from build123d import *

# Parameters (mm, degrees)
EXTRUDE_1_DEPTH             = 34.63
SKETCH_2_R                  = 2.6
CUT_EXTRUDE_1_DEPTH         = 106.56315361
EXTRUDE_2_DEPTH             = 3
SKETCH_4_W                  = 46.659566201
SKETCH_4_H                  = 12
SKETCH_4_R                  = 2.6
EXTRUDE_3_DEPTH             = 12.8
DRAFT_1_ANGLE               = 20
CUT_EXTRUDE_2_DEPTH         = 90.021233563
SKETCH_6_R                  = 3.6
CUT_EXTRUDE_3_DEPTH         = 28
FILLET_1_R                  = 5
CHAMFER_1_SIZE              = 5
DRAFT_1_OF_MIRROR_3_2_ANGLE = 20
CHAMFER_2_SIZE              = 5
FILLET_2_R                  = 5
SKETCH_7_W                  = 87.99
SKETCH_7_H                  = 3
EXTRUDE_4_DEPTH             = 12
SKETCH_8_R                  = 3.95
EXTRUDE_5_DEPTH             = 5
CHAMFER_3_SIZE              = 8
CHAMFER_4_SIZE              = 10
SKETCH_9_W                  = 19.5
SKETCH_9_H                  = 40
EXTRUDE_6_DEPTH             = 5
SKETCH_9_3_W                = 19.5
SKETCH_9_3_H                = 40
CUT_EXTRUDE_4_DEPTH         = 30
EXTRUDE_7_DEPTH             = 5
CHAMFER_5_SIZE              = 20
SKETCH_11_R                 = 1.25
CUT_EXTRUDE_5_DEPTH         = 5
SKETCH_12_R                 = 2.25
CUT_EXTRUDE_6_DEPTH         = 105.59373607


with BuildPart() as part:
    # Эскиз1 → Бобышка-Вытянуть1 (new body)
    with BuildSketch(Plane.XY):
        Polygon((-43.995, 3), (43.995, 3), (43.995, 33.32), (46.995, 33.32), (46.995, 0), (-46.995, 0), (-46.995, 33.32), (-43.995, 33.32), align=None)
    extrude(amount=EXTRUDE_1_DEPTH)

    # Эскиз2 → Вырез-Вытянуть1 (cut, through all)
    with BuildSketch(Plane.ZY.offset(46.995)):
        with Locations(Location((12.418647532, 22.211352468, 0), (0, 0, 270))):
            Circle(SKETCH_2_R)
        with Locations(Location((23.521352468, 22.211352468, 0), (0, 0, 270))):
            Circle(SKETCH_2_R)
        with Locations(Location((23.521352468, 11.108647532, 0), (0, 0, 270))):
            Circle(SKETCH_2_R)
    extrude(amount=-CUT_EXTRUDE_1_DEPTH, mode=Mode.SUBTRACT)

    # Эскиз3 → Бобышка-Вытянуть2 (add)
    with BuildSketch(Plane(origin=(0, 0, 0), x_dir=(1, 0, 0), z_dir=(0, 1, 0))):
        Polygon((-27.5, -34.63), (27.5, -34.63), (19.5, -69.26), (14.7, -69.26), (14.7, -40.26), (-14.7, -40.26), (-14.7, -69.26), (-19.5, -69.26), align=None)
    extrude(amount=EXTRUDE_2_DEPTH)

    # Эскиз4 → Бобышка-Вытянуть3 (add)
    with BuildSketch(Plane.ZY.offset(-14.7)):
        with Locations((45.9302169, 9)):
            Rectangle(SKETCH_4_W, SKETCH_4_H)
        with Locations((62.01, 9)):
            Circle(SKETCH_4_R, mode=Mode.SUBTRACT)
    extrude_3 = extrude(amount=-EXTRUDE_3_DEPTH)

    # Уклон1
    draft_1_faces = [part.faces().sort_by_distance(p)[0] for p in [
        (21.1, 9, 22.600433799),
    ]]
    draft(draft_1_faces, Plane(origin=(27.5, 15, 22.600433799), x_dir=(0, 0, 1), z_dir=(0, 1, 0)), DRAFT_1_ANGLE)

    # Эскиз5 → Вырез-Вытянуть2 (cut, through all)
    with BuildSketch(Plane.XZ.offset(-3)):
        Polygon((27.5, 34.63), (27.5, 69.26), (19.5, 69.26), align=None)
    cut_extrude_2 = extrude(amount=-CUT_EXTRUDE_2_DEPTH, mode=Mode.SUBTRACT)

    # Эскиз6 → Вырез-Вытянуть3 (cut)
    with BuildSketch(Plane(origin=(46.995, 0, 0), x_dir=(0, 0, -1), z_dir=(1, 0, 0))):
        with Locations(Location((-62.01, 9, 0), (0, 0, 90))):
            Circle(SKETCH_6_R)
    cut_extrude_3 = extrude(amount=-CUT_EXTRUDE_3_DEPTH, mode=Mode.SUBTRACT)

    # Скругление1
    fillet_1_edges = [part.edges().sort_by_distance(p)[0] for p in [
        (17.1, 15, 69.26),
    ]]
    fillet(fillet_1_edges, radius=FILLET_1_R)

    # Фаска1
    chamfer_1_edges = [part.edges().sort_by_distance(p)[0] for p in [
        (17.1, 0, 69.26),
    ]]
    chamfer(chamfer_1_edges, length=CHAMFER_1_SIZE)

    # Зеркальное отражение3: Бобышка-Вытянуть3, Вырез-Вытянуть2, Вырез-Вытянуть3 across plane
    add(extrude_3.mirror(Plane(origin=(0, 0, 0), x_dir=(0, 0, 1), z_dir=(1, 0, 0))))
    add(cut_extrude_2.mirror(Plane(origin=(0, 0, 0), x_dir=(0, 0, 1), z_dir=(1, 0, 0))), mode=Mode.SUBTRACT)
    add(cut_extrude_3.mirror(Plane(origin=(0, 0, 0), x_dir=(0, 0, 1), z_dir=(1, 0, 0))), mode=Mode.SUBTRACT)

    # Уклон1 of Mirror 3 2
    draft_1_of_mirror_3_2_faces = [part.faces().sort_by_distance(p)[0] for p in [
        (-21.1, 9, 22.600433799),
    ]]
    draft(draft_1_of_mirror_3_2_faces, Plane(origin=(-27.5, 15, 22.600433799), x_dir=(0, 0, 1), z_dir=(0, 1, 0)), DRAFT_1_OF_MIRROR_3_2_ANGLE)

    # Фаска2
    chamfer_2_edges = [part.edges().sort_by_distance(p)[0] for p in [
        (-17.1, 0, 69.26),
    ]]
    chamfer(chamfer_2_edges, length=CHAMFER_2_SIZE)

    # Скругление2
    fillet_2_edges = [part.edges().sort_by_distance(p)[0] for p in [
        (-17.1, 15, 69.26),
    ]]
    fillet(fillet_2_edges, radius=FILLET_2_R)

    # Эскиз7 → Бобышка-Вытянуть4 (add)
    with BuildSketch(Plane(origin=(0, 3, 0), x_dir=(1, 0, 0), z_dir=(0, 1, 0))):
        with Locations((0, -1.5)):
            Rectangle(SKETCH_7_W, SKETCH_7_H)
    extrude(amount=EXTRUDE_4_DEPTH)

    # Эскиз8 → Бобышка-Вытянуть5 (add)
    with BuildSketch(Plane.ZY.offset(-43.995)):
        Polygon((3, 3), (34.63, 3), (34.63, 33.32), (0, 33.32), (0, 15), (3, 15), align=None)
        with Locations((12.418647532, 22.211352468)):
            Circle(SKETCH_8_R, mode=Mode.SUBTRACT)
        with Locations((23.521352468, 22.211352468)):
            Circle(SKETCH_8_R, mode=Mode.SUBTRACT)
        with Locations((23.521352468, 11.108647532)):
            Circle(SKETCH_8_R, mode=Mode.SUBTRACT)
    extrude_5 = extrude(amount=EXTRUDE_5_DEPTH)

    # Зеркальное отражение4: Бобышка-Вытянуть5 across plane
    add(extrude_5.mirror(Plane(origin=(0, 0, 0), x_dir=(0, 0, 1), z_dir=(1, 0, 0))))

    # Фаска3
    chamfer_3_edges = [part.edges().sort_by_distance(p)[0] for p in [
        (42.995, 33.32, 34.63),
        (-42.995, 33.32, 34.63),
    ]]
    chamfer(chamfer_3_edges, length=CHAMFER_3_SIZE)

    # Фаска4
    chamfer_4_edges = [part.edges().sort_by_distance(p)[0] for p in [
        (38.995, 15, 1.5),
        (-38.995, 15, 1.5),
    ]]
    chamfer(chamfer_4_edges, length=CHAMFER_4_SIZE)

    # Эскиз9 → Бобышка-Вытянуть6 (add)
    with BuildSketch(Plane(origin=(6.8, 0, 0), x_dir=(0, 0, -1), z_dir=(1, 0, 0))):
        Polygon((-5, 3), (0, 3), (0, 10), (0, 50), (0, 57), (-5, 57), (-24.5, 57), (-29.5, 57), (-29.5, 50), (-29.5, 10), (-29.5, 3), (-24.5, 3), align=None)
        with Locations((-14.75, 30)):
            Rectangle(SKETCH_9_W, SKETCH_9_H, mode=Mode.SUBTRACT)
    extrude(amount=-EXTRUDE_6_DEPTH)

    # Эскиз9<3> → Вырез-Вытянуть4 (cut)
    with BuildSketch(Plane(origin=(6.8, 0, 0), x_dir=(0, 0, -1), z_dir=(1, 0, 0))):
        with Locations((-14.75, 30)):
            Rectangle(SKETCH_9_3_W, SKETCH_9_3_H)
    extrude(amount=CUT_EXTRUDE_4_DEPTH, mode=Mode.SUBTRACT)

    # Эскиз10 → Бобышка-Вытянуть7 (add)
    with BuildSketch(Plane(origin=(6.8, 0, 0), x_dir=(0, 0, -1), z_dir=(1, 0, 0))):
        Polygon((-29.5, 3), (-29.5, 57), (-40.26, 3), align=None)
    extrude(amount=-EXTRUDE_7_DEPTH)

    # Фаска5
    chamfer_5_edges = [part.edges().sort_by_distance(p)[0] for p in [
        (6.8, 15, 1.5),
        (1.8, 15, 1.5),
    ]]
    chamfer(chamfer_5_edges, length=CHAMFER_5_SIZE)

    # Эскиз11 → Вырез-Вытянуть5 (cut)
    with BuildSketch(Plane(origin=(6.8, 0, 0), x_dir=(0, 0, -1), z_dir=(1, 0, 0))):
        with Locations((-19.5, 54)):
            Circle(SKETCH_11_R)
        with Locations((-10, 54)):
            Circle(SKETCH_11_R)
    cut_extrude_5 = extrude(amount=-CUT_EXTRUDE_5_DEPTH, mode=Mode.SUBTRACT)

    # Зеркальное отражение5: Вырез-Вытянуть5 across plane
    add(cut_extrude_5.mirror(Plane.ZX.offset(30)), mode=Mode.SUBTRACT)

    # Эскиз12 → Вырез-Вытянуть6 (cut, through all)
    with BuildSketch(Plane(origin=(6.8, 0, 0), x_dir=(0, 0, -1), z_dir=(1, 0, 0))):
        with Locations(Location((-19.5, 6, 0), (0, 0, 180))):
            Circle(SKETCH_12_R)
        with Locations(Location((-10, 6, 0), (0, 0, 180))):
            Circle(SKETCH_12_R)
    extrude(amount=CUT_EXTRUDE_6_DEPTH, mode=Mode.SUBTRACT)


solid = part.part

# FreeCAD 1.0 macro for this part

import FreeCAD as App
import Part
import Sketcher
Q = App.Units.Quantity


def edges_at(feature, points):
    """Names of the edges that pass closest to the given points."""
    edges = feature.Shape.Edges
    near = lambda p: min(range(len(edges)), key=lambda i: edges[i].distToShape(Part.Vertex(*p))[0])
    return sorted({f"Edge{near(p) + 1}" for p in points})


def faces_at(feature, points):
    """Names of the faces that lie closest to the given points."""
    faces = feature.Shape.Faces
    near = lambda p: min(range(len(faces)), key=lambda i: faces[i].distToShape(Part.Vertex(*p))[0])
    return sorted({f"Face{near(p) + 1}" for p in points})

doc = App.newDocument("Part")
body = doc.addObject("PartDesign::Body", "Body")

sketch1 = body.newObject("Sketcher::SketchObject", "Sketch")
sketch1.AttachmentSupport = (doc.getObject("XY_Plane"), [""])
sketch1.MapMode = "FlatFace"
sketch1.addGeometry(Part.LineSegment(App.Vector(44, 3, 0), App.Vector(-44, 3, 0)), False)
sketch1.addGeometry(Part.LineSegment(App.Vector(-44, 3, 0), App.Vector(-44, 33.3, 0)), False)
sketch1.addGeometry(Part.LineSegment(App.Vector(-44, 33.3, 0), App.Vector(-47, 33.3, 0)), False)
sketch1.addGeometry(Part.LineSegment(App.Vector(-47, 33.3, 0), App.Vector(-47, 0, 0)), False)
sketch1.addGeometry(Part.LineSegment(App.Vector(-47, 0, 0), App.Vector(47, 0, 0)), False)
sketch1.addGeometry(Part.LineSegment(App.Vector(47, 0, 0), App.Vector(47, 33.3, 0)), False)
sketch1.addGeometry(Part.LineSegment(App.Vector(47, 33.3, 0), App.Vector(44, 33.3, 0)), False)
sketch1.addGeometry(Part.LineSegment(App.Vector(44, 33.3, 0), App.Vector(44, 3, 0)), False)
sketch1.addConstraint(Sketcher.Constraint("Coincident", 0, 2, 1, 1))
sketch1.addConstraint(Sketcher.Constraint("Coincident", 1, 2, 2, 1))
sketch1.addConstraint(Sketcher.Constraint("Coincident", 2, 2, 3, 1))
sketch1.addConstraint(Sketcher.Constraint("Coincident", 3, 2, 4, 1))
sketch1.addConstraint(Sketcher.Constraint("Coincident", 4, 2, 5, 1))
sketch1.addConstraint(Sketcher.Constraint("Coincident", 5, 2, 6, 1))
sketch1.addConstraint(Sketcher.Constraint("Coincident", 6, 2, 7, 1))
sketch1.addConstraint(Sketcher.Constraint("Coincident", 7, 2, 0, 1))
sketch1.addConstraint(Sketcher.Constraint("Horizontal", 0))
sketch1.addConstraint(Sketcher.Constraint("Vertical", 1))
sketch1.addConstraint(Sketcher.Constraint("Horizontal", 2))
sketch1.addConstraint(Sketcher.Constraint("Vertical", 3))
sketch1.addConstraint(Sketcher.Constraint("Horizontal", 4))
sketch1.addConstraint(Sketcher.Constraint("Vertical", 5))
sketch1.addConstraint(Sketcher.Constraint("Horizontal", 6))
sketch1.addConstraint(Sketcher.Constraint("Vertical", 7))
sketch1.addConstraint(Sketcher.Constraint("Symmetric", 3, 2, 4, 2, -1, 1))
sketch1.addConstraint(Sketcher.Constraint("Symmetric", 1, 2, 6, 2, -2))
sketch1.addConstraint(Sketcher.Constraint("DistanceX", 2, 2, 2, 1, Q("3 mm")))
sketch1.addConstraint(Sketcher.Constraint("DistanceY", -1, 1, 0, 2, Q("3 mm")))
sketch1.addConstraint(Sketcher.Constraint("DistanceX", 0, 2, 0, 1, Q("87.99 mm")))
sketch1.addConstraint(Sketcher.Constraint("DistanceY", 1, 1, 1, 2, Q("30.32 mm")))
pad1 = body.newObject("PartDesign::Pad", "Pad")
pad1.Profile = sketch1
pad1.Length = 34.63

sketch2 = body.newObject("Sketcher::SketchObject", "Sketch001")
sketch2.AttachmentSupport = (doc.getObject("YZ_Plane"), [""])
sketch2.MapMode = "FlatFace"
sketch2.AttachmentOffset = App.Placement(App.Vector(0, 0, -46.995), App.Rotation())
sketch2.addGeometry(Part.Circle(App.Vector(22.2, 12.4, 0), App.Vector(0, 0, 1), 2.6), False)
sketch2.addGeometry(Part.Circle(App.Vector(22.2, 23.5, 0), App.Vector(0, 0, 1), 2.6), False)
sketch2.addGeometry(Part.Circle(App.Vector(11.1, 23.5, 0), App.Vector(0, 0, 1), 2.6), False)
sketch2.addConstraint(Sketcher.Constraint("Equal", 0, 1))
sketch2.addConstraint(Sketcher.Constraint("Equal", 1, 2))
sketch2.addConstraint(Sketcher.Constraint("Horizontal", 1, 3, 2, 3))
sketch2.addConstraint(Sketcher.Constraint("Vertical", 0, 3, 1, 3))
sketch2.addConstraint(Sketcher.Constraint("Diameter", 0, Q("5.2 mm")))
sketch2.addConstraint(Sketcher.Constraint("DistanceX", -1, 1, 0, 3, Q("22.211352 mm")))
sketch2.addConstraint(Sketcher.Constraint("DistanceY", -1, 1, 0, 3, Q("12.418648 mm")))
sketch2.addConstraint(Sketcher.Constraint("DistanceY", -1, 1, 1, 3, Q("23.521352 mm")))
sketch2.addConstraint(Sketcher.Constraint("DistanceX", -1, 1, 2, 3, Q("11.108648 mm")))
pocket1 = body.newObject("PartDesign::Pocket", "Pocket")
pocket1.Profile = sketch2
pocket1.Type = "ThroughAll"
pocket1.Reversed = True

sketch3 = body.newObject("Sketcher::SketchObject", "Sketch002")
sketch3.AttachmentSupport = (doc.getObject("XZ_Plane"), [""])
sketch3.MapMode = "FlatFace"
sketch3.addGeometry(Part.LineSegment(App.Vector(27.5, 34.6, 0), App.Vector(-27.5, 34.6, 0)), False)
sketch3.addGeometry(Part.LineSegment(App.Vector(-27.5, 34.6, 0), App.Vector(-19.5, 69.3, 0)), False)
sketch3.addGeometry(Part.LineSegment(App.Vector(-19.5, 69.3, 0), App.Vector(-14.7, 69.3, 0)), False)
sketch3.addGeometry(Part.LineSegment(App.Vector(-14.7, 69.3, 0), App.Vector(-14.7, 40.3, 0)), False)
sketch3.addGeometry(Part.LineSegment(App.Vector(-14.7, 40.3, 0), App.Vector(14.7, 40.3, 0)), False)
sketch3.addGeometry(Part.LineSegment(App.Vector(14.7, 40.3, 0), App.Vector(14.7, 69.3, 0)), False)
sketch3.addGeometry(Part.LineSegment(App.Vector(14.7, 69.3, 0), App.Vector(19.5, 69.3, 0)), False)
sketch3.addGeometry(Part.LineSegment(App.Vector(19.5, 69.3, 0), App.Vector(27.5, 34.6, 0)), False)
sketch3.addConstraint(Sketcher.Constraint("Coincident", 0, 2, 1, 1))
sketch3.addConstraint(Sketcher.Constraint("Coincident", 1, 2, 2, 1))
sketch3.addConstraint(Sketcher.Constraint("Coincident", 2, 2, 3, 1))
sketch3.addConstraint(Sketcher.Constraint("Coincident", 3, 2, 4, 1))
sketch3.addConstraint(Sketcher.Constraint("Coincident", 4, 2, 5, 1))
sketch3.addConstraint(Sketcher.Constraint("Coincident", 5, 2, 6, 1))
sketch3.addConstraint(Sketcher.Constraint("Coincident", 6, 2, 7, 1))
sketch3.addConstraint(Sketcher.Constraint("Coincident", 7, 2, 0, 1))
sketch3.addConstraint(Sketcher.Constraint("Horizontal", 0))
sketch3.addConstraint(Sketcher.Constraint("Horizontal", 2))
sketch3.addConstraint(Sketcher.Constraint("Vertical", 3))
sketch3.addConstraint(Sketcher.Constraint("Horizontal", 4))
sketch3.addConstraint(Sketcher.Constraint("Vertical", 5))
sketch3.addConstraint(Sketcher.Constraint("Horizontal", 6))
sketch3.addConstraint(Sketcher.Constraint("Symmetric", 2, 2, 5, 2, -2))
sketch3.addConstraint(Sketcher.Constraint("Equal", 2, 6))
sketch3.addConstraint(Sketcher.Constraint("Equal", 1, 7))
sketch3.addConstraint(Sketcher.Constraint("DistanceX", 0, 2, 0, 1, Q("55 mm")))
sketch3.addConstraint(Sketcher.Constraint("DistanceY", 3, 2, 3, 1, Q("29 mm")))
sketch3.addConstraint(Sketcher.Constraint("DistanceX", 2, 1, 2, 2, Q("4.8 mm")))
sketch3.addConstraint(Sketcher.Constraint("DistanceX", 4, 1, 4, 2, Q("29.4 mm")))
sketch3.addConstraint(Sketcher.Constraint("DistanceY", -1, 1, 0, 2, Q("34.63 mm")))
sketch3.addConstraint(Sketcher.Constraint("DistanceY", -1, 1, 1, 2, Q("69.26 mm")))
pad2 = body.newObject("PartDesign::Pad", "Pad001")
pad2.Profile = sketch3
pad2.Length = 3
pad2.Reversed = True

sketch4 = body.newObject("Sketcher::SketchObject", "Sketch003")
sketch4.AttachmentSupport = (doc.getObject("YZ_Plane"), [""])
sketch4.MapMode = "FlatFace"
sketch4.AttachmentOffset = App.Placement(App.Vector(0, 0, 14.7), App.Rotation())
sketch4.addGeometry(Part.LineSegment(App.Vector(15, 22.6, 0), App.Vector(3, 22.6, 0)), False)
sketch4.addGeometry(Part.LineSegment(App.Vector(3, 22.6, 0), App.Vector(3, 69.3, 0)), False)
sketch4.addGeometry(Part.LineSegment(App.Vector(3, 69.3, 0), App.Vector(15, 69.3, 0)), False)
sketch4.addGeometry(Part.LineSegment(App.Vector(15, 69.3, 0), App.Vector(15, 22.6, 0)), False)
sketch4.addGeometry(Part.Circle(App.Vector(9, 62, 0), App.Vector(0, 0, 1), 2.6), False)
sketch4.addConstraint(Sketcher.Constraint("Coincident", 0, 2, 1, 1))
sketch4.addConstraint(Sketcher.Constraint("Coincident", 1, 2, 2, 1))
sketch4.addConstraint(Sketcher.Constraint("Coincident", 2, 2, 3, 1))
sketch4.addConstraint(Sketcher.Constraint("Coincident", 3, 2, 0, 1))
sketch4.addConstraint(Sketcher.Constraint("Horizontal", 0))
sketch4.addConstraint(Sketcher.Constraint("Vertical", 1))
sketch4.addConstraint(Sketcher.Constraint("Horizontal", 2))
sketch4.addConstraint(Sketcher.Constraint("Vertical", 3))
sketch4.addConstraint(Sketcher.Constraint("Diameter", 4, Q("5.2 mm")))
sketch4.addConstraint(Sketcher.Constraint("DistanceX", 0, 2, 0, 1, Q("12 mm")))
sketch4.addConstraint(Sketcher.Constraint("DistanceX", -1, 1, 4, 3, Q("9 mm")))
sketch4.addConstraint(Sketcher.Constraint("DistanceX", -1, 1, 0, 2, Q("3 mm")))
sketch4.addConstraint(Sketcher.Constraint("DistanceY", -1, 1, 4, 3, Q("62.01 mm")))
sketch4.addConstraint(Sketcher.Constraint("DistanceY", -1, 1, 1, 2, Q("69.26 mm")))
sketch4.addConstraint(Sketcher.Constraint("DistanceY", 1, 1, 1, 2, Q("46.659566 mm")))
pad3 = body.newObject("PartDesign::Pad", "Pad002")
pad3.Profile = sketch4
pad3.Length = 12.8
doc.recompute()

datumplane = body.newObject("PartDesign::Plane", "DatumPlane")
datumplane.AttachmentSupport = (doc.getObject("XZ_Plane"), [""])
datumplane.MapMode = "FlatFace"
datumplane.AttachmentOffset = App.Placement(App.Vector(0, 0, -15), App.Rotation())
draft = body.newObject("PartDesign::Draft", "Draft")
draft.Base = (pad3, faces_at(pad3, [(21.1, 9, 22.6)]))
draft.NeutralPlane = (datumplane, [""])
draft.Angle = 20
draft.Reversed = True

sketch5 = body.newObject("Sketcher::SketchObject", "Sketch004")
sketch5.AttachmentSupport = (doc.getObject("XZ_Plane"), [""])
sketch5.MapMode = "FlatFace"
sketch5.AttachmentOffset = App.Placement(App.Vector(0, 0, -3), App.Rotation())
sketch5.addGeometry(Part.LineSegment(App.Vector(28, 35, 0), App.Vector(28, 69, 0)), False)
sketch5.addGeometry(Part.LineSegment(App.Vector(28, 69, 0), App.Vector(20, 69, 0)), False)
sketch5.addGeometry(Part.LineSegment(App.Vector(20, 69, 0), App.Vector(28, 35, 0)), False)
sketch5.addConstraint(Sketcher.Constraint("Coincident", 0, 2, 1, 1))
sketch5.addConstraint(Sketcher.Constraint("Coincident", 1, 2, 2, 1))
sketch5.addConstraint(Sketcher.Constraint("Coincident", 2, 2, 0, 1))
sketch5.addConstraint(Sketcher.Constraint("Vertical", 0))
sketch5.addConstraint(Sketcher.Constraint("Horizontal", 1))
sketch5.addConstraint(Sketcher.Constraint("DistanceX", 1, 2, 1, 1, Q("8 mm")))
sketch5.addConstraint(Sketcher.Constraint("DistanceY", 0, 1, 0, 2, Q("34.63 mm")))
sketch5.addConstraint(Sketcher.Constraint("DistanceX", -1, 1, 0, 2, Q("27.5 mm")))
sketch5.addConstraint(Sketcher.Constraint("DistanceY", -1, 1, 0, 2, Q("69.26 mm")))
pocket2 = body.newObject("PartDesign::Pocket", "Pocket001")
pocket2.Profile = sketch5
pocket2.Type = "ThroughAll"

sketch6 = body.newObject("Sketcher::SketchObject", "Sketch005")
sketch6.AttachmentSupport = (doc.getObject("YZ_Plane"), [""])
sketch6.MapMode = "FlatFace"
sketch6.AttachmentOffset = App.Placement(App.Vector(0, 0, 46.995), App.Rotation())
sketch6.addGeometry(Part.Circle(App.Vector(9, 62, 0), App.Vector(0, 0, 1), 3.6), False)
sketch6.addConstraint(Sketcher.Constraint("Diameter", 0, Q("7.2 mm")))
sketch6.addConstraint(Sketcher.Constraint("DistanceX", -1, 1, 0, 3, Q("9 mm")))
sketch6.addConstraint(Sketcher.Constraint("DistanceY", -1, 1, 0, 3, Q("62.01 mm")))
pocket3 = body.newObject("PartDesign::Pocket", "Pocket002")
pocket3.Profile = sketch6
pocket3.Length = 28
doc.recompute()

fillet = body.newObject("PartDesign::Fillet", "Fillet")
fillet.Base = (pocket3, edges_at(pocket3, [(17.1, 15, 69.26)]))
fillet.Radius = 5
doc.recompute()

chamfer = body.newObject("PartDesign::Chamfer", "Chamfer")
chamfer.Base = (fillet, edges_at(fillet, [(17.1, 0, 69.26)]))
chamfer.Size = 5
doc.recompute()

mirrored = body.newObject("PartDesign::Mirrored", "Mirrored")
mirrored.Originals = [pad3, pocket2, pocket3]
mirrored.MirrorPlane = (doc.getObject("YZ_Plane"), [""])
body.Tip = mirrored
doc.recompute()

datumplane2 = body.newObject("PartDesign::Plane", "DatumPlane001")
datumplane2.AttachmentSupport = (doc.getObject("XZ_Plane"), [""])
datumplane2.MapMode = "FlatFace"
datumplane2.AttachmentOffset = App.Placement(App.Vector(0, 0, -15), App.Rotation())
draft2 = body.newObject("PartDesign::Draft", "Draft001")
draft2.Base = (mirrored, faces_at(mirrored, [(-21.1, 9, 22.6)]))
draft2.NeutralPlane = (datumplane2, [""])
draft2.Angle = 20
draft2.Reversed = True
doc.recompute()

chamfer2 = body.newObject("PartDesign::Chamfer", "Chamfer001")
chamfer2.Base = (draft2, edges_at(draft2, [(-17.1, 0, 69.26)]))
chamfer2.Size = 5
doc.recompute()

fillet2 = body.newObject("PartDesign::Fillet", "Fillet001")
fillet2.Base = (chamfer2, edges_at(chamfer2, [(-17.1, 15, 69.26)]))
fillet2.Radius = 5

sketch7 = body.newObject("Sketcher::SketchObject", "Sketch006")
sketch7.AttachmentSupport = (doc.getObject("XZ_Plane"), [""])
sketch7.MapMode = "FlatFace"
sketch7.AttachmentOffset = App.Placement(App.Vector(0, 0, -3), App.Rotation())
sketch7.addGeometry(Part.LineSegment(App.Vector(-44, 0, 0), App.Vector(-44, 3, 0)), False)
sketch7.addGeometry(Part.LineSegment(App.Vector(-44, 3, 0), App.Vector(44, 3, 0)), False)
sketch7.addGeometry(Part.LineSegment(App.Vector(44, 3, 0), App.Vector(44, 0, 0)), False)
sketch7.addGeometry(Part.LineSegment(App.Vector(44, 0, 0), App.Vector(-44, 0, 0)), False)
sketch7.addConstraint(Sketcher.Constraint("Coincident", 0, 2, 1, 1))
sketch7.addConstraint(Sketcher.Constraint("Coincident", 1, 2, 2, 1))
sketch7.addConstraint(Sketcher.Constraint("Coincident", 2, 2, 3, 1))
sketch7.addConstraint(Sketcher.Constraint("Coincident", 3, 2, 0, 1))
sketch7.addConstraint(Sketcher.Constraint("Vertical", 0))
sketch7.addConstraint(Sketcher.Constraint("Horizontal", 1))
sketch7.addConstraint(Sketcher.Constraint("Vertical", 2))
sketch7.addConstraint(Sketcher.Constraint("Horizontal", 3))
sketch7.addConstraint(Sketcher.Constraint("Symmetric", 2, 2, 3, 2, -1, 1))
sketch7.addConstraint(Sketcher.Constraint("DistanceY", 0, 1, 0, 2, Q("3 mm")))
sketch7.addConstraint(Sketcher.Constraint("DistanceX", 1, 1, 1, 2, Q("87.99 mm")))
pad4 = body.newObject("PartDesign::Pad", "Pad003")
pad4.Profile = sketch7
pad4.Length = 12
pad4.Reversed = True

sketch8 = body.newObject("Sketcher::SketchObject", "Sketch007")
sketch8.AttachmentSupport = (doc.getObject("YZ_Plane"), [""])
sketch8.MapMode = "FlatFace"
sketch8.AttachmentOffset = App.Placement(App.Vector(0, 0, 43.995), App.Rotation())
sketch8.addGeometry(Part.LineSegment(App.Vector(3, 3, 0), App.Vector(3, 34.6, 0)), False)
sketch8.addGeometry(Part.LineSegment(App.Vector(3, 34.6, 0), App.Vector(33.3, 34.6, 0)), False)
sketch8.addGeometry(Part.LineSegment(App.Vector(33.3, 34.6, 0), App.Vector(33.3, 0, 0)), False)
sketch8.addGeometry(Part.LineSegment(App.Vector(33.3, 0, 0), App.Vector(15, 0, 0)), False)
sketch8.addGeometry(Part.LineSegment(App.Vector(15, 0, 0), App.Vector(15, 3, 0)), False)
sketch8.addGeometry(Part.LineSegment(App.Vector(15, 3, 0), App.Vector(3, 3, 0)), False)
sketch8.addGeometry(Part.Circle(App.Vector(11.1, 23.5, 0), App.Vector(0, 0, 1), 4), False)
sketch8.addGeometry(Part.Circle(App.Vector(22.2, 12.4, 0), App.Vector(0, 0, 1), 4), False)
sketch8.addGeometry(Part.Circle(App.Vector(22.2, 23.5, 0), App.Vector(0, 0, 1), 4), False)
sketch8.addConstraint(Sketcher.Constraint("Coincident", 0, 2, 1, 1))
sketch8.addConstraint(Sketcher.Constraint("Coincident", 1, 2, 2, 1))
sketch8.addConstraint(Sketcher.Constraint("Coincident", 2, 2, 3, 1))
sketch8.addConstraint(Sketcher.Constraint("Coincident", 3, 2, 4, 1))
sketch8.addConstraint(Sketcher.Constraint("Coincident", 4, 2, 5, 1))
sketch8.addConstraint(Sketcher.Constraint("Coincident", 5, 2, 0, 1))
sketch8.addConstraint(Sketcher.Constraint("Vertical", 0))
sketch8.addConstraint(Sketcher.Constraint("Horizontal", 1))
sketch8.addConstraint(Sketcher.Constraint("Vertical", 2))
sketch8.addConstraint(Sketcher.Constraint("Horizontal", 3))
sketch8.addConstraint(Sketcher.Constraint("Vertical", 4))
sketch8.addConstraint(Sketcher.Constraint("Horizontal", 5))
sketch8.addConstraint(Sketcher.Constraint("Equal", 6, 7))
sketch8.addConstraint(Sketcher.Constraint("Equal", 7, 8))
sketch8.addConstraint(Sketcher.Constraint("PointOnObject", 2, 2, -1))
sketch8.addConstraint(Sketcher.Constraint("Horizontal", 6, 3, 8, 3))
sketch8.addConstraint(Sketcher.Constraint("Vertical", 7, 3, 8, 3))
sketch8.addConstraint(Sketcher.Constraint("Diameter", 6, Q("7.9 mm")))
sketch8.addConstraint(Sketcher.Constraint("DistanceX", 5, 2, 5, 1, Q("12 mm")))
sketch8.addConstraint(Sketcher.Constraint("DistanceY", 4, 1, 4, 2, Q("3 mm")))
sketch8.addConstraint(Sketcher.Constraint("DistanceX", -1, 1, 0, 2, Q("3 mm")))
sketch8.addConstraint(Sketcher.Constraint("DistanceX", 1, 1, 1, 2, Q("30.32 mm")))
sketch8.addConstraint(Sketcher.Constraint("DistanceY", 0, 1, 0, 2, Q("31.63 mm")))
sketch8.addConstraint(Sketcher.Constraint("DistanceX", -1, 1, 6, 3, Q("11.108648 mm")))
sketch8.addConstraint(Sketcher.Constraint("DistanceY", -1, 1, 6, 3, Q("23.521352 mm")))
sketch8.addConstraint(Sketcher.Constraint("DistanceX", -1, 1, 7, 3, Q("22.211352 mm")))
sketch8.addConstraint(Sketcher.Constraint("DistanceY", -1, 1, 7, 3, Q("12.418648 mm")))
pad5 = body.newObject("PartDesign::Pad", "Pad004")
pad5.Profile = sketch8
pad5.Length = 5
pad5.Reversed = True
doc.recompute()

mirrored2 = body.newObject("PartDesign::Mirrored", "Mirrored001")
mirrored2.Originals = [pad5]
mirrored2.MirrorPlane = (doc.getObject("YZ_Plane"), [""])
body.Tip = mirrored2
doc.recompute()

chamfer3 = body.newObject("PartDesign::Chamfer", "Chamfer002")
chamfer3.Base = (mirrored2, edges_at(mirrored2, [(42.995, 33.32, 34.63), (-42.995, 33.32, 34.63)]))
chamfer3.Size = 8
doc.recompute()

chamfer4 = body.newObject("PartDesign::Chamfer", "Chamfer003")
chamfer4.Base = (chamfer3, edges_at(chamfer3, [(38.995, 15, 1.5), (-38.995, 15, 1.5)]))
chamfer4.Size = 10

sketch9 = body.newObject("Sketcher::SketchObject", "Sketch008")
sketch9.AttachmentSupport = (doc.getObject("YZ_Plane"), [""])
sketch9.MapMode = "FlatFace"
sketch9.AttachmentOffset = App.Placement(App.Vector(0, 0, 6.8), App.Rotation())
sketch9.addGeometry(Part.LineSegment(App.Vector(3, 0, 0), App.Vector(57, 0, 0)), False)
sketch9.addGeometry(Part.LineSegment(App.Vector(57, 0, 0), App.Vector(57, 30, 0)), False)
sketch9.addGeometry(Part.LineSegment(App.Vector(57, 30, 0), App.Vector(3, 30, 0)), False)
sketch9.addGeometry(Part.LineSegment(App.Vector(3, 30, 0), App.Vector(3, 0, 0)), False)
sketch9.addGeometry(Part.LineSegment(App.Vector(10, 5, 0), App.Vector(10, 24, 0)), False)
sketch9.addGeometry(Part.LineSegment(App.Vector(10, 24, 0), App.Vector(50, 24, 0)), False)
sketch9.addGeometry(Part.LineSegment(App.Vector(50, 24, 0), App.Vector(50, 5, 0)), False)
sketch9.addGeometry(Part.LineSegment(App.Vector(50, 5, 0), App.Vector(10, 5, 0)), False)
sketch9.addConstraint(Sketcher.Constraint("Coincident", 0, 2, 1, 1))
sketch9.addConstraint(Sketcher.Constraint("Coincident", 1, 2, 2, 1))
sketch9.addConstraint(Sketcher.Constraint("Coincident", 2, 2, 3, 1))
sketch9.addConstraint(Sketcher.Constraint("Coincident", 3, 2, 0, 1))
sketch9.addConstraint(Sketcher.Constraint("Coincident", 4, 2, 5, 1))
sketch9.addConstraint(Sketcher.Constraint("Coincident", 5, 2, 6, 1))
sketch9.addConstraint(Sketcher.Constraint("Coincident", 6, 2, 7, 1))
sketch9.addConstraint(Sketcher.Constraint("Coincident", 7, 2, 4, 1))
sketch9.addConstraint(Sketcher.Constraint("Horizontal", 0))
sketch9.addConstraint(Sketcher.Constraint("Vertical", 1))
sketch9.addConstraint(Sketcher.Constraint("Horizontal", 2))
sketch9.addConstraint(Sketcher.Constraint("Vertical", 3))
sketch9.addConstraint(Sketcher.Constraint("Vertical", 4))
sketch9.addConstraint(Sketcher.Constraint("Horizontal", 5))
sketch9.addConstraint(Sketcher.Constraint("Vertical", 6))
sketch9.addConstraint(Sketcher.Constraint("Horizontal", 7))
sketch9.addConstraint(Sketcher.Constraint("PointOnObject", 0, 2, -1))
sketch9.addConstraint(Sketcher.Constraint("DistanceX", 0, 1, 0, 2, Q("54 mm")))
sketch9.addConstraint(Sketcher.Constraint("DistanceX", 5, 1, 5, 2, Q("40 mm")))
sketch9.addConstraint(Sketcher.Constraint("DistanceY", 1, 1, 1, 2, Q("29.5 mm")))
sketch9.addConstraint(Sketcher.Constraint("DistanceY", 4, 1, 4, 2, Q("19.5 mm")))
sketch9.addConstraint(Sketcher.Constraint("DistanceX", -1, 1, 0, 2, Q("57 mm")))
sketch9.addConstraint(Sketcher.Constraint("DistanceX", -1, 1, 4, 2, Q("10 mm")))
sketch9.addConstraint(Sketcher.Constraint("DistanceY", -1, 1, 6, 2, Q("5 mm")))
pad6 = body.newObject("PartDesign::Pad", "Pad005")
pad6.Profile = sketch9
pad6.Length = 5
pad6.Reversed = True

sketch10 = body.newObject("Sketcher::SketchObject", "Sketch009")
sketch10.AttachmentSupport = (doc.getObject("YZ_Plane"), [""])
sketch10.MapMode = "FlatFace"
sketch10.AttachmentOffset = App.Placement(App.Vector(0, 0, 6.8), App.Rotation())
sketch10.addGeometry(Part.LineSegment(App.Vector(50, 24, 0), App.Vector(10, 24, 0)), False)
sketch10.addGeometry(Part.LineSegment(App.Vector(10, 24, 0), App.Vector(10, 5, 0)), False)
sketch10.addGeometry(Part.LineSegment(App.Vector(10, 5, 0), App.Vector(50, 5, 0)), False)
sketch10.addGeometry(Part.LineSegment(App.Vector(50, 5, 0), App.Vector(50, 24, 0)), False)
sketch10.addConstraint(Sketcher.Constraint("Coincident", 0, 2, 1, 1))
sketch10.addConstraint(Sketcher.Constraint("Coincident", 1, 2, 2, 1))
sketch10.addConstraint(Sketcher.Constraint("Coincident", 2, 2, 3, 1))
sketch10.addConstraint(Sketcher.Constraint("Coincident", 3, 2, 0, 1))
sketch10.addConstraint(Sketcher.Constraint("Horizontal", 0))
sketch10.addConstraint(Sketcher.Constraint("Vertical", 1))
sketch10.addConstraint(Sketcher.Constraint("Horizontal", 2))
sketch10.addConstraint(Sketcher.Constraint("Vertical", 3))
sketch10.addConstraint(Sketcher.Constraint("DistanceX", 0, 2, 0, 1, Q("40 mm")))
sketch10.addConstraint(Sketcher.Constraint("DistanceY", 1, 2, 1, 1, Q("19.5 mm")))
sketch10.addConstraint(Sketcher.Constraint("DistanceX", -1, 1, 0, 2, Q("10 mm")))
sketch10.addConstraint(Sketcher.Constraint("DistanceY", -1, 1, 1, 2, Q("5 mm")))
pocket4 = body.newObject("PartDesign::Pocket", "Pocket003")
pocket4.Profile = sketch10
pocket4.Length = 30
pocket4.Reversed = True

sketch11 = body.newObject("Sketcher::SketchObject", "Sketch010")
sketch11.AttachmentSupport = (doc.getObject("YZ_Plane"), [""])
sketch11.MapMode = "FlatFace"
sketch11.AttachmentOffset = App.Placement(App.Vector(0, 0, 6.8), App.Rotation())
sketch11.addGeometry(Part.LineSegment(App.Vector(3, 30, 0), App.Vector(57, 30, 0)), False)
sketch11.addGeometry(Part.LineSegment(App.Vector(57, 30, 0), App.Vector(3, 40, 0)), False)
sketch11.addGeometry(Part.LineSegment(App.Vector(3, 40, 0), App.Vector(3, 30, 0)), False)
sketch11.addConstraint(Sketcher.Constraint("Coincident", 0, 2, 1, 1))
sketch11.addConstraint(Sketcher.Constraint("Coincident", 1, 2, 2, 1))
sketch11.addConstraint(Sketcher.Constraint("Coincident", 2, 2, 0, 1))
sketch11.addConstraint(Sketcher.Constraint("Horizontal", 0))
sketch11.addConstraint(Sketcher.Constraint("Vertical", 2))
sketch11.addConstraint(Sketcher.Constraint("DistanceX", 0, 1, 0, 2, Q("54 mm")))
sketch11.addConstraint(Sketcher.Constraint("DistanceX", -1, 1, 0, 2, Q("57 mm")))
sketch11.addConstraint(Sketcher.Constraint("DistanceY", 2, 2, 2, 1, Q("10.76 mm")))
sketch11.addConstraint(Sketcher.Constraint("DistanceY", -1, 1, 0, 2, Q("29.5 mm")))
pad7 = body.newObject("PartDesign::Pad", "Pad006")
pad7.Profile = sketch11
pad7.Length = 5
pad7.Reversed = True
doc.recompute()

chamfer5 = body.newObject("PartDesign::Chamfer", "Chamfer004")
chamfer5.Base = (pad7, edges_at(pad7, [(6.8, 15, 1.5), (1.8, 15, 1.5)]))
chamfer5.Size = 20

sketch12 = body.newObject("Sketcher::SketchObject", "Sketch011")
sketch12.AttachmentSupport = (doc.getObject("YZ_Plane"), [""])
sketch12.MapMode = "FlatFace"
sketch12.AttachmentOffset = App.Placement(App.Vector(0, 0, 6.8), App.Rotation())
sketch12.addGeometry(Part.Circle(App.Vector(54, 19.5, 0), App.Vector(0, 0, 1), 1.2), False)
sketch12.addGeometry(Part.Circle(App.Vector(54, 10, 0), App.Vector(0, 0, 1), 1.2), False)
sketch12.addConstraint(Sketcher.Constraint("Equal", 0, 1))
sketch12.addConstraint(Sketcher.Constraint("Vertical", 0, 3, 1, 3))
sketch12.addConstraint(Sketcher.Constraint("Diameter", 0, Q("2.5 mm")))
sketch12.addConstraint(Sketcher.Constraint("DistanceX", -1, 1, 0, 3, Q("54 mm")))
sketch12.addConstraint(Sketcher.Constraint("DistanceY", -1, 1, 1, 3, Q("10 mm")))
sketch12.addConstraint(Sketcher.Constraint("DistanceY", -1, 1, 0, 3, Q("19.5 mm")))
pocket5 = body.newObject("PartDesign::Pocket", "Pocket004")
pocket5.Profile = sketch12
pocket5.Length = 5
doc.recompute()

datumplane3 = body.newObject("PartDesign::Plane", "DatumPlane002")
datumplane3.AttachmentSupport = (doc.getObject("XZ_Plane"), [""])
datumplane3.MapMode = "FlatFace"
datumplane3.AttachmentOffset = App.Placement(App.Vector(0, 0, -30), App.Rotation())
mirrored3 = body.newObject("PartDesign::Mirrored", "Mirrored002")
mirrored3.Originals = [pocket5]
mirrored3.MirrorPlane = (datumplane3, [""])
body.Tip = mirrored3

sketch13 = body.newObject("Sketcher::SketchObject", "Sketch012")
sketch13.AttachmentSupport = (doc.getObject("YZ_Plane"), [""])
sketch13.MapMode = "FlatFace"
sketch13.AttachmentOffset = App.Placement(App.Vector(0, 0, 6.8), App.Rotation())
sketch13.addGeometry(Part.Circle(App.Vector(6, 19.5, 0), App.Vector(0, 0, 1), 2.2), False)
sketch13.addGeometry(Part.Circle(App.Vector(6, 10, 0), App.Vector(0, 0, 1), 2.2), False)
sketch13.addConstraint(Sketcher.Constraint("Equal", 0, 1))
sketch13.addConstraint(Sketcher.Constraint("Vertical", 0, 3, 1, 3))
sketch13.addConstraint(Sketcher.Constraint("Diameter", 0, Q("4.5 mm")))
sketch13.addConstraint(Sketcher.Constraint("DistanceX", -1, 1, 0, 3, Q("6 mm")))
sketch13.addConstraint(Sketcher.Constraint("DistanceY", -1, 1, 1, 3, Q("10 mm")))
sketch13.addConstraint(Sketcher.Constraint("DistanceY", -1, 1, 0, 3, Q("19.5 mm")))
pocket6 = body.newObject("PartDesign::Pocket", "Pocket005")
pocket6.Profile = sketch13
pocket6.Type = "ThroughAll"
pocket6.Reversed = True

doc.recompute()
